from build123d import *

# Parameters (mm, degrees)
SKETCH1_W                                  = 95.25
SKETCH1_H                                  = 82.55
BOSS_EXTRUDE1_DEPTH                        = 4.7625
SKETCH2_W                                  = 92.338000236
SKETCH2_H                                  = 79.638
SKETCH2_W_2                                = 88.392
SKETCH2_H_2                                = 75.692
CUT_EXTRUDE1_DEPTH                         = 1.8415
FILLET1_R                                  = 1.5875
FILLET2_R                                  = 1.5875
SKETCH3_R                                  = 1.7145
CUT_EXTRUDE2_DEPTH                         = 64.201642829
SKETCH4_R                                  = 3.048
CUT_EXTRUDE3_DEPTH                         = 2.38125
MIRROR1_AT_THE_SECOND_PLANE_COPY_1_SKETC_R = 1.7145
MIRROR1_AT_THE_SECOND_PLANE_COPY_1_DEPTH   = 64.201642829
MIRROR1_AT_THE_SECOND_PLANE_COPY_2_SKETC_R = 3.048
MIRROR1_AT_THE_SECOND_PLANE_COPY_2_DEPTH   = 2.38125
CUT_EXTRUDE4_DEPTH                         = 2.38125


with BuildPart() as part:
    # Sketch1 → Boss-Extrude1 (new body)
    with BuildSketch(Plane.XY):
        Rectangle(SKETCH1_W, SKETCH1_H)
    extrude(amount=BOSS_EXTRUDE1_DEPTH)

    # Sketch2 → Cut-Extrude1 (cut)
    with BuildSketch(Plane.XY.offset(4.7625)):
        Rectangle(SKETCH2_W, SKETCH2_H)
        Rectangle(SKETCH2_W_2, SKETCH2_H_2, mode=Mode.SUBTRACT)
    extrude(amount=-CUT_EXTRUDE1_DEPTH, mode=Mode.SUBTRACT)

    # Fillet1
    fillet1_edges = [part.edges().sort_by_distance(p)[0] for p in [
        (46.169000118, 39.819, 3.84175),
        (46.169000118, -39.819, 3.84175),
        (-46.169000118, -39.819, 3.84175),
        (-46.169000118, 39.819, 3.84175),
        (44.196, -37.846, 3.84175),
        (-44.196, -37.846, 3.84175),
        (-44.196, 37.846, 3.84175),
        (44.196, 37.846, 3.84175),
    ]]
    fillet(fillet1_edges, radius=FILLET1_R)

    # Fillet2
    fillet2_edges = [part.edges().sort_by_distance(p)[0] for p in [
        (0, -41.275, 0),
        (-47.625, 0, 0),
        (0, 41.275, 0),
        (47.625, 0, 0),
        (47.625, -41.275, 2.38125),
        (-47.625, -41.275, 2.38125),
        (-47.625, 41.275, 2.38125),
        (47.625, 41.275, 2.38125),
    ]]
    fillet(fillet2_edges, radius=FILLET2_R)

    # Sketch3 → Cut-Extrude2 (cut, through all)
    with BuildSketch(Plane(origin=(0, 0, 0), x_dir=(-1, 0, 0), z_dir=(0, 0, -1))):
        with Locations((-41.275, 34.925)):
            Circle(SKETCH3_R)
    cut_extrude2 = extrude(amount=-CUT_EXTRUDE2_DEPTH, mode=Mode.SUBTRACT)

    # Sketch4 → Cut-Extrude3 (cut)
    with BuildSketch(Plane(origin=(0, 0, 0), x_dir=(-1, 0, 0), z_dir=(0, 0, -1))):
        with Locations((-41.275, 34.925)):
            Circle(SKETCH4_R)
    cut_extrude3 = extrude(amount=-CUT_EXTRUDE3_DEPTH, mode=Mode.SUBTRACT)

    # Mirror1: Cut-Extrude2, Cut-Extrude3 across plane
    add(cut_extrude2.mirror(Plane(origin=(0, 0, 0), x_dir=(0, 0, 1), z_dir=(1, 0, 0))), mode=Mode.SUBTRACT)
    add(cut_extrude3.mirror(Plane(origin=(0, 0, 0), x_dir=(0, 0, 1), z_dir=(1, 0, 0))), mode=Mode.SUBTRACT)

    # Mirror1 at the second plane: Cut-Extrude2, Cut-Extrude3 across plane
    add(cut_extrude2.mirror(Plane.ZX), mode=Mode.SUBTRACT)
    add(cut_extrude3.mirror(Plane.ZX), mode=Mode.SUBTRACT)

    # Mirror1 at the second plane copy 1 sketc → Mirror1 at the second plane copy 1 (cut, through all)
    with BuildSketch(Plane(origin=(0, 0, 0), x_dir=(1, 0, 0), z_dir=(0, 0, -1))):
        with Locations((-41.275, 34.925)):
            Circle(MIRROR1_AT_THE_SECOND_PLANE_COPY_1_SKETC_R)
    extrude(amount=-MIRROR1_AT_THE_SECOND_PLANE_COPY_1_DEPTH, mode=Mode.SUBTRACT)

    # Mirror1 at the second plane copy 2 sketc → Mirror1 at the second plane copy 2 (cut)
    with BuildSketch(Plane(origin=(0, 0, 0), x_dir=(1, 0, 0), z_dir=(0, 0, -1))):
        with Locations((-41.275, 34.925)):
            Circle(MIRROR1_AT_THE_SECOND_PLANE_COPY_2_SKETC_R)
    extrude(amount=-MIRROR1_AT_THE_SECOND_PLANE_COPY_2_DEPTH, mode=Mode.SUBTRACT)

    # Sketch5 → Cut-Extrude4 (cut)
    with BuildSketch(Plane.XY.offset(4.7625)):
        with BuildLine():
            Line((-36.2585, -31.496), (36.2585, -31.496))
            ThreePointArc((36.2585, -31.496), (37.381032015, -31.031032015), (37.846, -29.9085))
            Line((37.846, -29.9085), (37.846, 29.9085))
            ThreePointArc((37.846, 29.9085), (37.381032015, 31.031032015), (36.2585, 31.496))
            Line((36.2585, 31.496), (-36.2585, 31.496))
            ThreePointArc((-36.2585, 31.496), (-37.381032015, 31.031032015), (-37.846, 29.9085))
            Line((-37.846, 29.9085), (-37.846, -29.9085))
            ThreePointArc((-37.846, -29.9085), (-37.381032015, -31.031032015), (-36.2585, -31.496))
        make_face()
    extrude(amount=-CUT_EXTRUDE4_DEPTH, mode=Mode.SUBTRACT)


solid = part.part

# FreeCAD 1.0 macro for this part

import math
import FreeCAD as App
import Part
import Sketcher
Q = App.Units.Quantity


def edges_at(feature, points):
    """Names of the edges that pass closest to the given points."""
    edges = feature.Shape.Edges
    near = lambda p: min(range(len(edges)), key=lambda i: edges[i].distToShape(Part.Vertex(*p))[0])
    return sorted({f"Edge{near(p) + 1}" for p in points})

doc = App.newDocument("Part")
params = doc.addObject("Spreadsheet::Sheet", "Params")
for row, (alias, value) in enumerate([
    ("sketch1_width", "3.75 in"),
    ("sketch1_height", "3.25 in"),
    ("pad1_length", "0.1875 in"),
    ("sketch2_width", "3.48 in"),
    ("sketch2_height", "2.98 in"),
    ("pocket1_length", "0.0725 in"),
    ("fillet_radius", "0.0625 in"),
    ("fillet2_radius", "0.0625 in"),
    ("sketch3_diameter", "0.135 in"),
    ("sketch4_diameter", "0.24 in"),
    ("pocket3_length", "0.09375 in"),
    ("sketch5_diameter", "0.135 in"),
    ("sketch6_diameter", "0.24 in"),
    ("pocket5_length", "0.09375 in"),
    ("sketch7_radius", "0.0625 in"),
    ("sketch7_width", "2.855 in"),
    ("sketch7_height", "2.355 in"),
    ("pocket6_length", "0.09375 in"),
], start=1):
    params.set(f"A{row}", alias)
    params.set(f"B{row}", "=" + value)
    params.setAlias(f"B{row}", alias)

body = doc.addObject("PartDesign::Body", "Body")

sketch1 = doc.addObject("Sketcher::SketchObject", "Sketch")
body.addObject(sketch1)
sketch1.AttachmentSupport = (doc.XY_Plane, [""])
sketch1.MapMode = "FlatFace"
sketch1.addGeometry([
    Part.LineSegment(App.Vector(-47.625, 41.275, 0), App.Vector(-47.625, -41.275, 0)),
    Part.LineSegment(App.Vector(-47.625, -41.275, 0), App.Vector(47.625, -41.275, 0)),
    Part.LineSegment(App.Vector(47.625, -41.275, 0), App.Vector(47.625, 41.275, 0)),
    Part.LineSegment(App.Vector(47.625, 41.275, 0), App.Vector(-47.625, 41.275, 0)),
], False)
sketch1.addConstraint([
    Sketcher.Constraint("Coincident", 0, 2, 1, 1),
    Sketcher.Constraint("Coincident", 1, 2, 2, 1),
    Sketcher.Constraint("Coincident", 2, 2, 3, 1),
    Sketcher.Constraint("Coincident", 3, 2, 0, 1),
    Sketcher.Constraint("Vertical", 0),
    Sketcher.Constraint("Horizontal", 1),
    Sketcher.Constraint("Vertical", 2),
    Sketcher.Constraint("Horizontal", 3),
    Sketcher.Constraint("Symmetric", 0, 2, 2, 2, -1, 1),
    Sketcher.Constraint("DistanceX", 1, 1, 1, 2, Q("3.75 in")),
    Sketcher.Constraint("DistanceY", 0, 2, 0, 1, Q("3.25 in")),
])
sketch1.setExpression("Constraints[9]", "Params.sketch1_width")
sketch1.setExpression("Constraints[10]", "Params.sketch1_height")
pad1 = doc.addObject("PartDesign::Pad", "Pad")
body.addObject(pad1)
pad1.Profile = sketch1
pad1.setExpression("Length", "Params.pad1_length")

sketch2 = doc.addObject("Sketcher::SketchObject", "Sketch001")
body.addObject(sketch2)
sketch2.AttachmentSupport = (doc.XY_Plane, [""])
sketch2.MapMode = "FlatFace"
sketch2.AttachmentOffset = App.Placement(App.Vector(0, 0, 0.1875 * 25.4), App.Rotation())
sketch2.addGeometry([
    Part.LineSegment(App.Vector(-46.169, 39.819, 0), App.Vector(-46.169, -39.819, 0)),
    Part.LineSegment(App.Vector(-46.169, -39.819, 0), App.Vector(46.169, -39.819, 0)),
    Part.LineSegment(App.Vector(46.169, -39.819, 0), App.Vector(46.169, 39.819, 0)),
    Part.LineSegment(App.Vector(46.169, 39.819, 0), App.Vector(-46.169, 39.819, 0)),
    Part.LineSegment(App.Vector(44.196, -37.846, 0), App.Vector(-44.196, -37.846, 0)),
    Part.LineSegment(App.Vector(-44.196, -37.846, 0), App.Vector(-44.196, 37.846, 0)),
    Part.LineSegment(App.Vector(-44.196, 37.846, 0), App.Vector(44.196, 37.846, 0)),
    Part.LineSegment(App.Vector(44.196, 37.846, 0), App.Vector(44.196, -37.846, 0)),
], False)
sketch2.addConstraint([
    Sketcher.Constraint("Coincident", 0, 2, 1, 1),
    Sketcher.Constraint("Coincident", 1, 2, 2, 1),
    Sketcher.Constraint("Coincident", 2, 2, 3, 1),
    Sketcher.Constraint("Coincident", 3, 2, 0, 1),
    Sketcher.Constraint("Coincident", 4, 2, 5, 1),
    Sketcher.Constraint("Coincident", 5, 2, 6, 1),
    Sketcher.Constraint("Coincident", 6, 2, 7, 1),
    Sketcher.Constraint("Coincident", 7, 2, 4, 1),
    Sketcher.Constraint("Vertical", 0),
    Sketcher.Constraint("Horizontal", 1),
    Sketcher.Constraint("Vertical", 2),
    Sketcher.Constraint("Horizontal", 3),
    Sketcher.Constraint("Horizontal", 4),
    Sketcher.Constraint("Vertical", 5),
    Sketcher.Constraint("Horizontal", 6),
    Sketcher.Constraint("Vertical", 7),
    Sketcher.Constraint("Symmetric", 0, 2, 2, 2, -1, 1),
    Sketcher.Constraint("Symmetric", 4, 2, 6, 2, -1, 1),
    Sketcher.Constraint("DistanceX", 4, 2, 4, 1, Q("3.48 in")),
    Sketcher.Constraint("DistanceY", 5, 1, 5, 2, Q("2.98 in")),
    Sketcher.Constraint("DistanceX", 1, 1, 1, 2, Q("92.338 mm")),
    Sketcher.Constraint("DistanceY", 0, 2, 0, 1, Q("79.638 mm")),
])
sketch2.setExpression("Constraints[18]", "Params.sketch2_width")
sketch2.setExpression("Constraints[19]", "Params.sketch2_height")
pocket1 = doc.addObject("PartDesign::Pocket", "Pocket")
body.addObject(pocket1)
pocket1.Profile = sketch2
pocket1.setExpression("Length", "Params.pocket1_length")
doc.recompute()

fillet = doc.addObject("PartDesign::Fillet", "Fillet")
body.addObject(fillet)
fillet.Base = (pocket1, edges_at(pocket1, [
    (46.169, 39.819, 3.842),
    (46.169, -39.819, 3.842),
    (-46.169, -39.819, 3.842),
    (-46.169, 39.819, 3.842),
    (44.196, -37.846, 3.842),
    (-44.196, -37.846, 3.842),
    (-44.196, 37.846, 3.842),
    (44.196, 37.846, 3.842),
]))
fillet.setExpression("Radius", "Params.fillet_radius")
doc.recompute()

fillet2 = doc.addObject("PartDesign::Fillet", "Fillet001")
body.addObject(fillet2)
fillet2.Base = (fillet, edges_at(fillet, [
    (0, -41.275, 0),
    (-47.625, 0, 0),
    (0, 41.275, 0),
    (47.625, 0, 0),
    (47.625, -41.275, 2.381),
    (-47.625, -41.275, 2.381),
    (-47.625, 41.275, 2.381),
    (47.625, 41.275, 2.381),
]))
fillet2.setExpression("Radius", "Params.fillet2_radius")

sketch3 = doc.addObject("Sketcher::SketchObject", "Sketch002")
body.addObject(sketch3)
sketch3.AttachmentSupport = (doc.XY_Plane, [""])
sketch3.MapMode = "FlatFace"
sketch3.addGeometry(Part.Circle(App.Vector(41.275, 34.925, 0), App.Vector(0, 0, 1), 1.7145), False)
sketch3.addConstraint([
    Sketcher.Constraint("Diameter", 0, Q("0.135 in")),
    Sketcher.Constraint("DistanceX", -1, 1, 0, 3, Q("1.625 in")),
    Sketcher.Constraint("DistanceY", -1, 1, 0, 3, Q("1.375 in")),
])
sketch3.setExpression("Constraints[0]", "Params.sketch3_diameter")
pocket2 = doc.addObject("PartDesign::Pocket", "Pocket001")
body.addObject(pocket2)
pocket2.Profile = sketch3
pocket2.Type = "ThroughAll"
pocket2.Reversed = True

sketch4 = doc.addObject("Sketcher::SketchObject", "Sketch003")
body.addObject(sketch4)
sketch4.AttachmentSupport = (doc.XY_Plane, [""])
sketch4.MapMode = "FlatFace"
sketch4.addGeometry(Part.Circle(App.Vector(41.275, 34.925, 0), App.Vector(0, 0, 1), 3.048), False)
sketch4.addConstraint([
    Sketcher.Constraint("Diameter", 0, Q("0.24 in")),
    Sketcher.Constraint("DistanceX", -1, 1, 0, 3, Q("1.625 in")),
    Sketcher.Constraint("DistanceY", -1, 1, 0, 3, Q("1.375 in")),
])
sketch4.setExpression("Constraints[0]", "Params.sketch4_diameter")
pocket3 = doc.addObject("PartDesign::Pocket", "Pocket002")
body.addObject(pocket3)
pocket3.Profile = sketch4
pocket3.setExpression("Length", "Params.pocket3_length")
pocket3.Reversed = True
doc.recompute()

mirrored = doc.addObject("PartDesign::Mirrored", "Mirrored")
body.addObject(mirrored)
mirrored.Originals = [pocket2, pocket3]
mirrored.MirrorPlane = (doc.YZ_Plane, [""])
body.Tip = mirrored
doc.recompute()

mirrored2 = doc.addObject("PartDesign::Mirrored", "Mirrored001")
body.addObject(mirrored2)
mirrored2.Originals = [pocket2, pocket3]
mirrored2.MirrorPlane = (doc.XZ_Plane, [""])
body.Tip = mirrored2

sketch5 = doc.addObject("Sketcher::SketchObject", "Sketch004")
body.addObject(sketch5)
sketch5.AttachmentSupport = (doc.XY_Plane, [""])
sketch5.MapMode = "FlatFace"
sketch5.addGeometry(Part.Circle(App.Vector(-41.275, -34.925, 0), App.Vector(0, 0, 1), 1.7145), False)
sketch5.addConstraint([
    Sketcher.Constraint("Diameter", 0, Q("0.135 in")),
    Sketcher.Constraint("DistanceX", 0, 3, -1, 1, Q("1.625 in")),
    Sketcher.Constraint("DistanceY", 0, 3, -1, 1, Q("1.375 in")),
])
sketch5.setExpression("Constraints[0]", "Params.sketch5_diameter")
pocket4 = doc.addObject("PartDesign::Pocket", "Pocket003")
body.addObject(pocket4)
pocket4.Profile = sketch5
pocket4.Type = "ThroughAll"
pocket4.Reversed = True

sketch6 = doc.addObject("Sketcher::SketchObject", "Sketch005")
body.addObject(sketch6)
sketch6.AttachmentSupport = (doc.XY_Plane, [""])
sketch6.MapMode = "FlatFace"
sketch6.addGeometry(Part.Circle(App.Vector(-41.275, -34.925, 0), App.Vector(0, 0, 1), 3.048), False)
sketch6.addConstraint([
    Sketcher.Constraint("Diameter", 0, Q("0.24 in")),
    Sketcher.Constraint("DistanceX", 0, 3, -1, 1, Q("1.625 in")),
    Sketcher.Constraint("DistanceY", 0, 3, -1, 1, Q("1.375 in")),
])
sketch6.setExpression("Constraints[0]", "Params.sketch6_diameter")
pocket5 = doc.addObject("PartDesign::Pocket", "Pocket004")
body.addObject(pocket5)
pocket5.Profile = sketch6
pocket5.setExpression("Length", "Params.pocket5_length")
pocket5.Reversed = True

sketch7 = doc.addObject("Sketcher::SketchObject", "Sketch006")
body.addObject(sketch7)
sketch7.AttachmentSupport = (doc.XY_Plane, [""])
sketch7.MapMode = "FlatFace"
sketch7.AttachmentOffset = App.Placement(App.Vector(0, 0, 0.1875 * 25.4), App.Rotation())
sketch7.addGeometry([
    Part.LineSegment(App.Vector(-36.2585, -31.496, 0), App.Vector(36.2585, -31.496, 0)),
    Part.ArcOfCircle(Part.Circle(App.Vector(36.2585, -29.9085, 0), App.Vector(0, 0, 1), 1.5875), math.radians(-90), math.radians(0)),
    Part.LineSegment(App.Vector(37.846, -29.9085, 0), App.Vector(37.846, 29.9085, 0)),
    Part.ArcOfCircle(Part.Circle(App.Vector(36.2585, 29.9085, 0), App.Vector(0, 0, 1), 1.5875), math.radians(0), math.radians(90)),
    Part.LineSegment(App.Vector(36.2585, 31.496, 0), App.Vector(-36.2585, 31.496, 0)),
    Part.ArcOfCircle(Part.Circle(App.Vector(-36.2585, 29.9085, 0), App.Vector(0, 0, 1), 1.5875), math.radians(90), math.radians(180)),
    Part.LineSegment(App.Vector(-37.846, 29.9085, 0), App.Vector(-37.846, -29.9085, 0)),
    Part.ArcOfCircle(Part.Circle(App.Vector(-36.2585, -29.9085, 0), App.Vector(0, 0, 1), 1.5875), math.radians(180), math.radians(270)),
], False)
sketch7.addConstraint([
    Sketcher.Constraint("Tangent", 0, 2, 1, 1),
    Sketcher.Constraint("Tangent", 1, 2, 2, 1),
    Sketcher.Constraint("Tangent", 2, 2, 3, 1),
    Sketcher.Constraint("Tangent", 3, 2, 4, 1),
    Sketcher.Constraint("Tangent", 4, 2, 5, 1),
    Sketcher.Constraint("Tangent", 5, 2, 6, 1),
    Sketcher.Constraint("Tangent", 6, 2, 7, 1),
    Sketcher.Constraint("Tangent", 7, 2, 0, 1),
    Sketcher.Constraint("Horizontal", 0),
    Sketcher.Constraint("Vertical", 2),
    Sketcher.Constraint("Horizontal", 4),
    Sketcher.Constraint("Vertical", 6),
    Sketcher.Constraint("Equal", 1, 3),
    Sketcher.Constraint("Equal", 3, 5),
    Sketcher.Constraint("Equal", 5, 7),
    Sketcher.Constraint("Symmetric", 1, 3, 5, 3, -1, 1),
    Sketcher.Constraint("Radius", 1, Q("0.0625 in")),
    Sketcher.Constraint("DistanceX", 0, 1, 0, 2, Q("2.855 in")),
    Sketcher.Constraint("DistanceY", 2, 1, 2, 2, Q("2.355 in")),
])
sketch7.setExpression("Constraints[16]", "Params.sketch7_radius")
sketch7.setExpression("Constraints[17]", "Params.sketch7_width")
sketch7.setExpression("Constraints[18]", "Params.sketch7_height")
pocket6 = doc.addObject("PartDesign::Pocket", "Pocket005")
body.addObject(pocket6)
pocket6.Profile = sketch7
pocket6.setExpression("Length", "Params.pocket6_length")

doc.recompute()
